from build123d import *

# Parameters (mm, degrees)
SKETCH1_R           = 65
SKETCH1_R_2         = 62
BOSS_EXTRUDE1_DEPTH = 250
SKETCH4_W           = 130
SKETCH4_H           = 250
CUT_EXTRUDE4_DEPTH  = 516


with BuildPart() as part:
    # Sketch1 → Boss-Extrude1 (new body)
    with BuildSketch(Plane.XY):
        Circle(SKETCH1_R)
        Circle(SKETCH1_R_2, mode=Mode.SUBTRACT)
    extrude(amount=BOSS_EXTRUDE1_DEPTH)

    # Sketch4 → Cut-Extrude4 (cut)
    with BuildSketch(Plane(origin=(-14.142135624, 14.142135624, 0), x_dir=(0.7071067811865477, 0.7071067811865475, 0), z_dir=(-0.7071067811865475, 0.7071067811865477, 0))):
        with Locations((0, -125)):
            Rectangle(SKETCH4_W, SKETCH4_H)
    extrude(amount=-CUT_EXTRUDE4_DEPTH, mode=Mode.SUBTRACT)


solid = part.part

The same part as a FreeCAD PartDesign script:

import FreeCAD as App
import Part
import Sketcher
Q = App.Units.Quantity

doc = App.newDocument("Part")
body = doc.addObject("PartDesign::Body", "Body")

# Sketch on XY plane
sketch1 = body.newObject("Sketcher::SketchObject", "Sketch")
sketch1.AttachmentSupport = (doc.getObject("XY_Plane"), [""])
sketch1.MapMode = "FlatFace"
sketch1.addGeometry([
    Part.Circle(App.Vector(0, 0, 0), App.Vector(0, 0, 1), 65),
    Part.Circle(App.Vector(0, 0, 0), App.Vector(0, 0, 1), 62),
], False)
sketch1.addConstraint([
    Sketcher.Constraint("Coincident", 0, 3, -1, 1),
    Sketcher.Constraint("Coincident", 1, 3, -1, 1),
    Sketcher.Constraint("Diameter", 0, Q("130 mm")),
    Sketcher.Constraint("Diameter", 1, Q("124 mm")),
])
pad1 = body.newObject("PartDesign::Pad", "Pad")
pad1.Profile = sketch1
pad1.Length = 250

# Sketch on an angled plane
sketch2 = body.newObject("Sketcher::SketchObject", "Sketch001")
sketch2.Placement = App.Placement(App.Vector(-14.142136, 14.142136, 0), App.Rotation(App.Vector(0.707106781, 0.707106781, 0), App.Vector(0, 0, -0.999999999), App.Vector(-0.707106781, 0.707106781, 0), "ZXY"))
sketch2.addGeometry([
    Part.LineSegment(App.Vector(-65, 0, 0), App.Vector(-65, -250, 0)),
    Part.LineSegment(App.Vector(-65, -250, 0), App.Vector(65, -250, 0)),
    Part.LineSegment(App.Vector(65, -250, 0), App.Vector(65, 0, 0)),
    Part.LineSegment(App.Vector(65, 0, 0), App.Vector(-65, 0, 0)),
], False)
sketch2.addConstraint([
    Sketcher.Constraint("Coincident", 0, 2, 1, 1),
    Sketcher.Constraint("Coincident", 1, 2, 2, 1),
    Sketcher.Constraint("Coincident", 2, 2, 3, 1),
    Sketcher.Constraint("Coincident", 3, 2, 0, 1),
    Sketcher.Constraint("Vertical", 0),
    Sketcher.Constraint("Horizontal", 1),
    Sketcher.Constraint("Vertical", 2),
    Sketcher.Constraint("Horizontal", 3),
    Sketcher.Constraint("Symmetric", 2, 2, 3, 2, -1, 1),
    Sketcher.Constraint("DistanceX", 1, 1, 1, 2, Q("130 mm")),
    Sketcher.Constraint("DistanceY", 0, 2, 0, 1, Q("250 mm")),
])
pocket1 = body.newObject("PartDesign::Pocket", "Pocket")
pocket1.Profile = sketch2
pocket1.Length = 516

doc.recompute()
